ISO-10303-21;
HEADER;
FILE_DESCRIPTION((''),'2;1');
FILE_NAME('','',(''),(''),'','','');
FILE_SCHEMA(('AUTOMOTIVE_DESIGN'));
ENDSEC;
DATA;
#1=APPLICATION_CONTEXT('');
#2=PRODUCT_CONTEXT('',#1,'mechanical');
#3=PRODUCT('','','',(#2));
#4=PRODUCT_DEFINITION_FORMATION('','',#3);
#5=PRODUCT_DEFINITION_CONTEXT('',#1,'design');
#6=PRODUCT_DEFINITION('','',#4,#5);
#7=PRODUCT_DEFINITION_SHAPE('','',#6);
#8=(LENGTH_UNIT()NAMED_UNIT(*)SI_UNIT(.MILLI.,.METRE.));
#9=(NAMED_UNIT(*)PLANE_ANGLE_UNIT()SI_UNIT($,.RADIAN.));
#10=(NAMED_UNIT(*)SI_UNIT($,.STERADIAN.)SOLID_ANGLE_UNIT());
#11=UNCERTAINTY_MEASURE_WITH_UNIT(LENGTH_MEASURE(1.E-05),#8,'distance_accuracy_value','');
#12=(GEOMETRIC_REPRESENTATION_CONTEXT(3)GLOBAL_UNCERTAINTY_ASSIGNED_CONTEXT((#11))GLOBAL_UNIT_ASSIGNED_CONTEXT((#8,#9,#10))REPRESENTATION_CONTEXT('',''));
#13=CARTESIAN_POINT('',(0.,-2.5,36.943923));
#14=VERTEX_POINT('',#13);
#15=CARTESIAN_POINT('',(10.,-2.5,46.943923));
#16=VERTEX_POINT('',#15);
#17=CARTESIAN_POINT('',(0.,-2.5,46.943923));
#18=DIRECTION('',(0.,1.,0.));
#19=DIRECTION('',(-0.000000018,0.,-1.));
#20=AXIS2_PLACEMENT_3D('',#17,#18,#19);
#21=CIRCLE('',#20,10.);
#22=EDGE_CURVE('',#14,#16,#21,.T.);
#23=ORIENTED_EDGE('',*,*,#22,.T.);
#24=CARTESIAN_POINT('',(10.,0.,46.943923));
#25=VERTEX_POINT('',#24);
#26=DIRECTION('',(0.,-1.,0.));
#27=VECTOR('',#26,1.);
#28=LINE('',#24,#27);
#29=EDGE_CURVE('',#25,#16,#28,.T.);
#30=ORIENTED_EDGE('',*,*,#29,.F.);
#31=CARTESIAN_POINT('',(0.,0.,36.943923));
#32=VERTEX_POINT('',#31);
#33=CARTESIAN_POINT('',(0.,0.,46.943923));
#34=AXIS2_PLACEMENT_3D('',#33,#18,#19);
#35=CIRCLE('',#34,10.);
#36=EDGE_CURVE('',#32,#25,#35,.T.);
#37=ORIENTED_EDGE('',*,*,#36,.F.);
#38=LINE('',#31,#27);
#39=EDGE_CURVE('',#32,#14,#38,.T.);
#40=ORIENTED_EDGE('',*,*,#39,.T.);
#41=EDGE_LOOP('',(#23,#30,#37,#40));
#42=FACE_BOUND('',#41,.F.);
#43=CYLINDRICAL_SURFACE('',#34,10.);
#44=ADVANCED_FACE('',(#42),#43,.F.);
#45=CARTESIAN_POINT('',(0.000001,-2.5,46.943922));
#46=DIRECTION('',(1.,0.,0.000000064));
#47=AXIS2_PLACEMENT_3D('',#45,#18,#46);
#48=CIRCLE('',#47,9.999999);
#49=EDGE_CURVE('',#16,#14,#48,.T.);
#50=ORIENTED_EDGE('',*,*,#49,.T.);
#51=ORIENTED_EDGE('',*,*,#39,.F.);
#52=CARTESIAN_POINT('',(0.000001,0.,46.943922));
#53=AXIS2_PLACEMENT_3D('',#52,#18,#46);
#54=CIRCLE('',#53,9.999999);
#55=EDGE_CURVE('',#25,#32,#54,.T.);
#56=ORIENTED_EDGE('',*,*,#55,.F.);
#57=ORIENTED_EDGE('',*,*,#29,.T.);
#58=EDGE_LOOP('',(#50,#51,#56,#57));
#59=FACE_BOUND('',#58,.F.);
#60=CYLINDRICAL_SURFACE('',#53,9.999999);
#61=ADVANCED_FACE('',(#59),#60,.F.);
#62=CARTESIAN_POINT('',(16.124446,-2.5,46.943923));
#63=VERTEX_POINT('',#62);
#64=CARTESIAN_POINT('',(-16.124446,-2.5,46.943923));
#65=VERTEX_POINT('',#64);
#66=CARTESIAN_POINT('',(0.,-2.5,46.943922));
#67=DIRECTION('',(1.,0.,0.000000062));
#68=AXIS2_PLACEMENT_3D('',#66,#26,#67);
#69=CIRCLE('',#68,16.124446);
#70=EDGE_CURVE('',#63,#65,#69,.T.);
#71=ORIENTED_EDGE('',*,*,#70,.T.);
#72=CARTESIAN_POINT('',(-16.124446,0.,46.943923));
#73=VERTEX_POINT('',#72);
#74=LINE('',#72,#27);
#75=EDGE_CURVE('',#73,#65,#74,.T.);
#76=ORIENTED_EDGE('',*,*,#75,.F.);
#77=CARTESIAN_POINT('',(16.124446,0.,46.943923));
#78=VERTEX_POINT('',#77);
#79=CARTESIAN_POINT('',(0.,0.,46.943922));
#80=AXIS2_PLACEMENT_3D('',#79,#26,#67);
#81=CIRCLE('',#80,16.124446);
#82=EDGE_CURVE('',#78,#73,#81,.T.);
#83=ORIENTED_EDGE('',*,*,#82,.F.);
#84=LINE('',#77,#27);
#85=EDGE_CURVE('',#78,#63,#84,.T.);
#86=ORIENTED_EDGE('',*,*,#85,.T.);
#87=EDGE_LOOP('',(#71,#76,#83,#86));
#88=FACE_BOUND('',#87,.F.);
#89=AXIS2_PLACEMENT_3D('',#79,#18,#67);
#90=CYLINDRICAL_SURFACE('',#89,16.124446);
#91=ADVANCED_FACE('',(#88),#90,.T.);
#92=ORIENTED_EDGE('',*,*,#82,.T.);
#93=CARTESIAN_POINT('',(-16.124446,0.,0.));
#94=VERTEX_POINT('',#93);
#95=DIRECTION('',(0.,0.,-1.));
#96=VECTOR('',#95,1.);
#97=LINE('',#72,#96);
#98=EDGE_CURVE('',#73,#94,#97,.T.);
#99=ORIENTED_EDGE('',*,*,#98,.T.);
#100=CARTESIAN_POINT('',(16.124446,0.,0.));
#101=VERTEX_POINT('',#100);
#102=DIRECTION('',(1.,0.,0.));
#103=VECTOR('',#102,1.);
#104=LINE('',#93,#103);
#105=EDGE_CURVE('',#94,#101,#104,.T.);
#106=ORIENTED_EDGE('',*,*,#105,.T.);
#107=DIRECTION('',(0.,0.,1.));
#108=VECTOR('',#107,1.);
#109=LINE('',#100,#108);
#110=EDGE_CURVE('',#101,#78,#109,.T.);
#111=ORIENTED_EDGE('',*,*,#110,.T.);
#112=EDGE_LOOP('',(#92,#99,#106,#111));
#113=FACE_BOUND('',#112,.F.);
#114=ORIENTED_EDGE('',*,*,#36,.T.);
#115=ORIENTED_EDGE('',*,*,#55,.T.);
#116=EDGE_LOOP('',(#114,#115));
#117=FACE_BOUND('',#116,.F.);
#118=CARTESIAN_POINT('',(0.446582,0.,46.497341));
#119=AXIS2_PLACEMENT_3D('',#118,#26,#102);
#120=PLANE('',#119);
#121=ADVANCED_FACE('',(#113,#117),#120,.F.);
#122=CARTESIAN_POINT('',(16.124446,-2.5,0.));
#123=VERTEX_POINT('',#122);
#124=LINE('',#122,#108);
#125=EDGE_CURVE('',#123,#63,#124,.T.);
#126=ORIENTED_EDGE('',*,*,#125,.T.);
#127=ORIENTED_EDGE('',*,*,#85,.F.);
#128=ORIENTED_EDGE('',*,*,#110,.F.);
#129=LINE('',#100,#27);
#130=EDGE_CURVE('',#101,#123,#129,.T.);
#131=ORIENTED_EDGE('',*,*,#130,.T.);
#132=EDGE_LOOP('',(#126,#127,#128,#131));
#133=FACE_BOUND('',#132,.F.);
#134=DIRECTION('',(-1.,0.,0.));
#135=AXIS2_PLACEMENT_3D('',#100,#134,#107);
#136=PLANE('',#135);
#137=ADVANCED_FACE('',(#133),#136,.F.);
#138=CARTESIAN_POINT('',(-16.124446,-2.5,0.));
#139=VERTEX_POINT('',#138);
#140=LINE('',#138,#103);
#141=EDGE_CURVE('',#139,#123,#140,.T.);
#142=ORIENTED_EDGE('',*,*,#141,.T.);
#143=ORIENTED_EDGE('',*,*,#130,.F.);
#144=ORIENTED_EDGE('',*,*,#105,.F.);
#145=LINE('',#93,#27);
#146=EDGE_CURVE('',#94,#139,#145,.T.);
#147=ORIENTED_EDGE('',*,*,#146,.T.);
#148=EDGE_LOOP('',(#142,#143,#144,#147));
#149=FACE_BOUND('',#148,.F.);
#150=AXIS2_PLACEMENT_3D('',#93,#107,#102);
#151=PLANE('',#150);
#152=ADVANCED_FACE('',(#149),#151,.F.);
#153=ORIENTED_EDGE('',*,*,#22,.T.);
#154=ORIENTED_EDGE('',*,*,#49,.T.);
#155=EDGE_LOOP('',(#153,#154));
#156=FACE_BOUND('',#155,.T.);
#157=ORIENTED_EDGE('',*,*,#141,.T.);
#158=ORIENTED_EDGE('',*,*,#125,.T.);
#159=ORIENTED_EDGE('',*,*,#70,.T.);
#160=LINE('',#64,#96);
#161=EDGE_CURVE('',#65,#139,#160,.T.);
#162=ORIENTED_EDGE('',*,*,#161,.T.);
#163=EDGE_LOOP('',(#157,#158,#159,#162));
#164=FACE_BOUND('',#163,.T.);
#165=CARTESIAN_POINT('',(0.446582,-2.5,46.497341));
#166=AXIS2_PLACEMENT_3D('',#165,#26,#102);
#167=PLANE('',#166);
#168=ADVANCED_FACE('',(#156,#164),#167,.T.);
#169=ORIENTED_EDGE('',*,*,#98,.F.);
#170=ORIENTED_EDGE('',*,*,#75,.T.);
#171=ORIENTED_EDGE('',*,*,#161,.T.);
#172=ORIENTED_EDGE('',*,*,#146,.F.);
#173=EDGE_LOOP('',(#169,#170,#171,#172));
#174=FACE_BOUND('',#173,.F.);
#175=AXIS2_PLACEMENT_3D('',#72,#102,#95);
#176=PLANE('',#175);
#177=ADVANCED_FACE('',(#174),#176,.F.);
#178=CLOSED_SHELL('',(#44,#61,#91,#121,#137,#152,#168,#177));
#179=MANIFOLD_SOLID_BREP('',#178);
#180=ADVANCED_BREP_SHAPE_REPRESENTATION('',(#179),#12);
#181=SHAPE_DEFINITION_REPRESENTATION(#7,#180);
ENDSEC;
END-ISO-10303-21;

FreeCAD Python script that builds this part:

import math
import FreeCAD as App
import Part
import Sketcher

V = App.Vector

doc = App.newDocument("Part")
body = doc.addObject("PartDesign::Body", "Body")

# Sketch on XZ plane
sketch1 = doc.addObject("Sketcher::SketchObject", "Sketch")
body.addObject(sketch1)
sketch1.AttachmentSupport = (doc.XZ_Plane, [""])
sketch1.MapMode = "FlatFace"
sketch1.addGeometry(Part.LineSegment(V(-16, 0, 0), V(16, 0, 0)), False)
sketch1.addGeometry(Part.LineSegment(V(16, 0, 0), V(16, 47, 0)), False)
sketch1.addGeometry(Part.ArcOfCircle(Part.Circle(V(0, 47, 0), V(0, 0, 1), 16), math.radians(0), math.radians(180)), False)
sketch1.addGeometry(Part.LineSegment(V(-16, 47, 0), V(-16, 0, 0)), False)
sketch1.addGeometry(Part.ArcOfCircle(Part.Circle(V(0, 47, 0), V(0, 0, 1), 10), math.radians(0), math.radians(270)), False)
sketch1.addGeometry(Part.ArcOfCircle(Part.Circle(V(0, 47, 0), V(0, 0, 1), 10), math.radians(-90), math.radians(0)), False)
sketch1.addConstraint(Sketcher.Constraint("Coincident", 0, 2, 1, 1))
sketch1.addConstraint(Sketcher.Constraint("Tangent", 1, 2, 2, 1))
sketch1.addConstraint(Sketcher.Constraint("Tangent", 2, 2, 3, 1))
sketch1.addConstraint(Sketcher.Constraint("Coincident", 3, 2, 0, 1))
sketch1.addConstraint(Sketcher.Constraint("Tangent", 4, 1, 5, 2))
sketch1.addConstraint(Sketcher.Constraint("Coincident", 5, 1, 4, 2))
sketch1.addConstraint(Sketcher.Constraint("Horizontal", 0))
sketch1.addConstraint(Sketcher.Constraint("Vertical", 1))
sketch1.addConstraint(Sketcher.Constraint("Vertical", 3))
sketch1.addConstraint(Sketcher.Constraint("Coincident", 4, 3, 2, 3))
sketch1.addConstraint(Sketcher.Constraint("Symmetric", 0, 2, 3, 2, -1, 1))
sketch1.addConstraint(Sketcher.Constraint("PointOnObject", 5, 1, -2))
sketch1.addConstraint(Sketcher.Constraint("Horizontal", 2, 2, 4, 1))
sketch1.addConstraint(Sketcher.Constraint("Radius", 4, 10.0))
sketch1.addConstraint(Sketcher.Constraint("Radius", 2, 16.124446))
sketch1.addConstraint(Sketcher.Constraint("DistanceY", 1, 1, 1, 2, 46.943923))
pad1 = doc.addObject("PartDesign::Pad", "Pad")
body.addObject(pad1)
pad1.Profile = sketch1
pad1.Length = 2.5

doc.recompute()
